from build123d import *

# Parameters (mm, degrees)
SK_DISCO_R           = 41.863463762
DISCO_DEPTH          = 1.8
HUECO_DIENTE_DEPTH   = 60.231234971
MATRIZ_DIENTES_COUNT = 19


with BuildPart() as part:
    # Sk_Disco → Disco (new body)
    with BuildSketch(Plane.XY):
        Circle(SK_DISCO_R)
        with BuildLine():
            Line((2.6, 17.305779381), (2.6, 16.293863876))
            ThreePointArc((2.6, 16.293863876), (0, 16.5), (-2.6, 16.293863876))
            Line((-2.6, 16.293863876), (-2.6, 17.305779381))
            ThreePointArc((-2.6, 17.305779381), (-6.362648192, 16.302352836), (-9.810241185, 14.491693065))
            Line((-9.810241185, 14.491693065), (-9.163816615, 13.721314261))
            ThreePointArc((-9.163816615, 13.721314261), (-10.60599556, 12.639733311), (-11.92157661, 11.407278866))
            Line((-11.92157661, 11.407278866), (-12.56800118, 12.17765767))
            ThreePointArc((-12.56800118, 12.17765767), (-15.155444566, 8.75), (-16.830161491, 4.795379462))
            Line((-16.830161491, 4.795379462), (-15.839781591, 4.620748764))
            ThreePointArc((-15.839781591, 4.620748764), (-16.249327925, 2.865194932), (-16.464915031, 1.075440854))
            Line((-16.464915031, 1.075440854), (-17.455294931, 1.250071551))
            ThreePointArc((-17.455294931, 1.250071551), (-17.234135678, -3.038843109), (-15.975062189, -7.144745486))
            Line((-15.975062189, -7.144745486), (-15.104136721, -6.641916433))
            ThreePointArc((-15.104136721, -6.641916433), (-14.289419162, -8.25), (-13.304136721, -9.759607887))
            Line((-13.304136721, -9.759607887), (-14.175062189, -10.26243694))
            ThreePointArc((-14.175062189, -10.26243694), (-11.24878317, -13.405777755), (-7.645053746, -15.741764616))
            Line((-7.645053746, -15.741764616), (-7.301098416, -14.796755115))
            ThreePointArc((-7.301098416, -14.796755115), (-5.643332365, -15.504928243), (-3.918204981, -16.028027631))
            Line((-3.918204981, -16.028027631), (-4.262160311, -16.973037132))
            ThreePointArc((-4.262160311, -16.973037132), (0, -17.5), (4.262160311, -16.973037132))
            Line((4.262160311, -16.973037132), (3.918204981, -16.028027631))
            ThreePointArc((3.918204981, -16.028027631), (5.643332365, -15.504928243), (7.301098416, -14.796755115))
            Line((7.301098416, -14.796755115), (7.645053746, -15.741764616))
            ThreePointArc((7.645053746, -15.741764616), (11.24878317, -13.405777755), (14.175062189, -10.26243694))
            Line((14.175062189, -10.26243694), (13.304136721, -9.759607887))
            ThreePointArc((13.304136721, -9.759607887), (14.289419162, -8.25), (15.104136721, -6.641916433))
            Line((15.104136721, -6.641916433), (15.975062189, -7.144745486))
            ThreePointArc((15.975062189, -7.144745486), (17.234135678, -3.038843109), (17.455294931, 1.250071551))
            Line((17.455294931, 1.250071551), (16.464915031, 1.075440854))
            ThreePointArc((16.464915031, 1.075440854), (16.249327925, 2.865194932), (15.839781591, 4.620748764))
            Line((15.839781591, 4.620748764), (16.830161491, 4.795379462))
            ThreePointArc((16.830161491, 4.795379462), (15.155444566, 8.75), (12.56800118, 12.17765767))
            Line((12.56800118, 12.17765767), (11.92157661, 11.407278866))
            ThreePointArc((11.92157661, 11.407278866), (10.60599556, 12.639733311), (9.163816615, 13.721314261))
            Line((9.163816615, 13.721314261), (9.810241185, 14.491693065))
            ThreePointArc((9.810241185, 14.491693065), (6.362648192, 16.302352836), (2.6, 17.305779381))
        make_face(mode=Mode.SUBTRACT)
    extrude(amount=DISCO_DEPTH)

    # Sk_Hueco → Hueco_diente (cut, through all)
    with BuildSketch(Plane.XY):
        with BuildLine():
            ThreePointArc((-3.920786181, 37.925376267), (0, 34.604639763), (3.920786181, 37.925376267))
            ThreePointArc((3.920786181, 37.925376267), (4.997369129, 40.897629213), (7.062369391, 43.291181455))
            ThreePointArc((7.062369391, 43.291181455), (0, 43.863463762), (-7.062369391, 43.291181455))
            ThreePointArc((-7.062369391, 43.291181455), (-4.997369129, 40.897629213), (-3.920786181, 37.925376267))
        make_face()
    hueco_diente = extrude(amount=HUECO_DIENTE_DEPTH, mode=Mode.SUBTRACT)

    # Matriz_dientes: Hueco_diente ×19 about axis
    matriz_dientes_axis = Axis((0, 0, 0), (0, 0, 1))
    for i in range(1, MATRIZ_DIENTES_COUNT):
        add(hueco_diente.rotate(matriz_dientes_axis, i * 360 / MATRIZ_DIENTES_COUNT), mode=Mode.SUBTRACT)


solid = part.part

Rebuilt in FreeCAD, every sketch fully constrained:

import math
import FreeCAD as App
import Part
import Sketcher

V = App.Vector
Q = App.Units.Quantity

doc = App.newDocument("Part")
params = doc.addObject("Spreadsheet::Sheet", "Params")
for row, (alias, value) in enumerate([
    ("sketch1_radius", "17.5 mm"),
    ("sketch1_radius2", "16.5 mm"),
    ("pad1_length", "1.8 mm"),
], start=1):
    params.set(f"A{row}", alias)
    params.set(f"B{row}", "=" + value)
    params.setAlias(f"B{row}", alias)

body = doc.addObject("PartDesign::Body", "Body")

sketch1 = doc.addObject("Sketcher::SketchObject", "Sketch")
body.addObject(sketch1)
sketch1.AttachmentSupport = (doc.XY_Plane, [""])
sketch1.MapMode = "FlatFace"
sketch1.addGeometry([
    Part.Circle(V(0, 0, 0), V(0, 0, 1), 41.9),
    Part.LineSegment(V(2.6, 16.3, 0), V(2.6, 17.3, 0)),
    Part.ArcOfCircle(Part.Circle(V(0, 0, 0), V(0, 0, 1), 17.5), math.radians(56), math.radians(81)),
    Part.LineSegment(V(9.8, 14.5, 0), V(9.2, 13.7, 0)),
    Part.ArcOfCircle(Part.Circle(V(0, 0, 0), V(0, 0, 1), 16.5), math.radians(43.74), math.radians(56.26)),
    Part.LineSegment(V(11.9, 11.4, 0), V(12.6, 12.2, 0)),
    Part.ArcOfCircle(Part.Circle(V(0, 0, 0), V(0, 0, 1), 17.5), math.radians(16), math.radians(44)),
    Part.LineSegment(V(16.8, 4.8, 0), V(15.8, 4.6, 0)),
    Part.ArcOfCircle(Part.Circle(V(0, 0, 0), V(0, 0, 1), 16.5), math.radians(3.74), math.radians(16.26)),
    Part.LineSegment(V(16.5, 1.1, 0), V(17.5, 1.3, 0)),
    Part.ArcOfCircle(Part.Circle(V(0, 0, 0), V(0, 0, 1), 17.5), math.radians(-24), math.radians(4)),
    Part.LineSegment(V(16, -7.1, 0), V(15.1, -6.6, 0)),
    Part.ArcOfCircle(Part.Circle(V(0, 0, 0), V(0, 0, 1), 16.5), math.radians(-36.26), math.radians(-23.74)),
    Part.LineSegment(V(13.3, -9.8, 0), V(14.2, -10.3, 0)),
    Part.ArcOfCircle(Part.Circle(V(0, 0, 0), V(0, 0, 1), 17.5), math.radians(-64), math.radians(-36)),
    Part.LineSegment(V(7.6, -15.7, 0), V(7.3, -14.8, 0)),
    Part.ArcOfCircle(Part.Circle(V(0, 0, 0), V(0, 0, 1), 16.5), math.radians(-76.26), math.radians(-63.74)),
    Part.LineSegment(V(3.9, -16, 0), V(4.3, -17, 0)),
    Part.ArcOfCircle(Part.Circle(V(0, 0, 0), V(0, 0, 1), 17.5), math.radians(-104), math.radians(-76)),
    Part.LineSegment(V(-4.3, -17, 0), V(-3.9, -16, 0)),
    Part.ArcOfCircle(Part.Circle(V(0, 0, 0), V(0, 0, 1), 16.5), math.radians(-116.26), math.radians(-103.74)),
    Part.LineSegment(V(-7.3, -14.8, 0), V(-7.6, -15.7, 0)),
    Part.ArcOfCircle(Part.Circle(V(0, 0, 0), V(0, 0, 1), 17.5), math.radians(-144), math.radians(-116)),
    Part.LineSegment(V(-14.2, -10.3, 0), V(-13.3, -9.8, 0)),
    Part.ArcOfCircle(Part.Circle(V(0, 0, 0), V(0, 0, 1), 16.5), math.radians(-156.26), math.radians(-143.74)),
    Part.LineSegment(V(-15.1, -6.6, 0), V(-16, -7.1, 0)),
    Part.ArcOfCircle(Part.Circle(V(0, 0, 0), V(0, 0, 1), 17.5), math.radians(176), math.radians(204)),
    Part.LineSegment(V(-17.5, 1.3, 0), V(-16.5, 1.1, 0)),
    Part.ArcOfCircle(Part.Circle(V(0, 0, 0), V(0, 0, 1), 16.5), math.radians(163.74), math.radians(176.26)),
    Part.LineSegment(V(-15.8, 4.6, 0), V(-16.8, 4.8, 0)),
    Part.ArcOfCircle(Part.Circle(V(0, 0, 0), V(0, 0, 1), 17.5), math.radians(136), math.radians(164)),
    Part.LineSegment(V(-12.6, 12.2, 0), V(-11.9, 11.4, 0)),
    Part.ArcOfCircle(Part.Circle(V(0, 0, 0), V(0, 0, 1), 16.5), math.radians(123.74), math.radians(136.26)),
    Part.LineSegment(V(-9.2, 13.7, 0), V(-9.8, 14.5, 0)),
    Part.ArcOfCircle(Part.Circle(V(0, 0, 0), V(0, 0, 1), 17.5), math.radians(99), math.radians(124)),
    Part.LineSegment(V(-2.6, 17.3, 0), V(-2.6, 16.3, 0)),
    Part.ArcOfCircle(Part.Circle(V(0, 0, 0), V(0, 0, 1), 16.5), math.radians(80.93), math.radians(99.07)),
], False)
sketch1.addConstraint([
    Sketcher.Constraint("Coincident", 1, 2, 2, 2),
    Sketcher.Constraint("Coincident", 2, 1, 3, 1),
    Sketcher.Constraint("Coincident", 3, 2, 4, 2),
    Sketcher.Constraint("Coincident", 4, 1, 5, 1),
    Sketcher.Constraint("Coincident", 5, 2, 6, 2),
    Sketcher.Constraint("Coincident", 6, 1, 7, 1),
    Sketcher.Constraint("Coincident", 7, 2, 8, 2),
    Sketcher.Constraint("Coincident", 8, 1, 9, 1),
    Sketcher.Constraint("Coincident", 9, 2, 10, 2),
    Sketcher.Constraint("Coincident", 10, 1, 11, 1),
    Sketcher.Constraint("Coincident", 11, 2, 12, 2),
    Sketcher.Constraint("Coincident", 12, 1, 13, 1),
    Sketcher.Constraint("Coincident", 13, 2, 14, 2),
    Sketcher.Constraint("Coincident", 14, 1, 15, 1),
    Sketcher.Constraint("Coincident", 15, 2, 16, 2),
    Sketcher.Constraint("Coincident", 16, 1, 17, 1),
    Sketcher.Constraint("Coincident", 17, 2, 18, 2),
    Sketcher.Constraint("Coincident", 18, 1, 19, 1),
    Sketcher.Constraint("Coincident", 19, 2, 20, 2),
    Sketcher.Constraint("Coincident", 20, 1, 21, 1),
    Sketcher.Constraint("Coincident", 21, 2, 22, 2),
    Sketcher.Constraint("Coincident", 22, 1, 23, 1),
    Sketcher.Constraint("Coincident", 23, 2, 24, 2),
    Sketcher.Constraint("Coincident", 24, 1, 25, 1),
    Sketcher.Constraint("Coincident", 25, 2, 26, 2),
    Sketcher.Constraint("Coincident", 26, 1, 27, 1),
    Sketcher.Constraint("Coincident", 27, 2, 28, 2),
    Sketcher.Constraint("Coincident", 28, 1, 29, 1),
    Sketcher.Constraint("Coincident", 29, 2, 30, 2),
    Sketcher.Constraint("Coincident", 30, 1, 31, 1),
    Sketcher.Constraint("Coincident", 31, 2, 32, 2),
    Sketcher.Constraint("Coincident", 32, 1, 33, 1),
    Sketcher.Constraint("Coincident", 33, 2, 34, 2),
    Sketcher.Constraint("Coincident", 34, 1, 35, 1),
    Sketcher.Constraint("Coincident", 35, 2, 36, 2),
    Sketcher.Constraint("Coincident", 36, 1, 1, 1),
    Sketcher.Constraint("Vertical", 1),
    Sketcher.Constraint("Vertical", 35),
    Sketcher.Constraint("Coincident", 0, 3, -1, 1),
    Sketcher.Constraint("Coincident", 2, 3, -1, 1),
    Sketcher.Constraint("Coincident", 4, 3, -1, 1),
    Sketcher.Constraint("Coincident", 6, 3, -1, 1),
    Sketcher.Constraint("Coincident", 8, 3, -1, 1),
    Sketcher.Constraint("Coincident", 10, 3, -1, 1),
    Sketcher.Constraint("Coincident", 12, 3, -1, 1),
    Sketcher.Constraint("Coincident", 14, 3, -1, 1),
    Sketcher.Constraint("Coincident", 16, 3, -1, 1),
    Sketcher.Constraint("Coincident", 18, 3, -1, 1),
    Sketcher.Constraint("Coincident", 20, 3, -1, 1),
    Sketcher.Constraint("Coincident", 22, 3, -1, 1),
    Sketcher.Constraint("Coincident", 24, 3, -1, 1),
    Sketcher.Constraint("Coincident", 26, 3, -1, 1),
    Sketcher.Constraint("Coincident", 28, 3, -1, 1),
    Sketcher.Constraint("Coincident", 30, 3, -1, 1),
    Sketcher.Constraint("Coincident", 32, 3, -1, 1),
    Sketcher.Constraint("Coincident", 34, 3, -1, 1),
    Sketcher.Constraint("Coincident", 36, 3, -1, 1),
    Sketcher.Constraint("Equal", 2, 6),
    Sketcher.Constraint("Equal", 4, 8),
    Sketcher.Constraint("Equal", 6, 10),
    Sketcher.Constraint("Equal", 8, 12),
    Sketcher.Constraint("Equal", 10, 14),
    Sketcher.Constraint("Equal", 12, 16),
    Sketcher.Constraint("Equal", 14, 18),
    Sketcher.Constraint("Equal", 16, 20),
    Sketcher.Constraint("Equal", 18, 22),
    Sketcher.Constraint("Equal", 20, 24),
    Sketcher.Constraint("Equal", 22, 26),
    Sketcher.Constraint("Equal", 24, 28),
    Sketcher.Constraint("Equal", 26, 30),
    Sketcher.Constraint("Equal", 28, 32),
    Sketcher.Constraint("Equal", 30, 34),
    Sketcher.Constraint("Equal", 32, 36),
    Sketcher.Constraint("Parallel", 3, 5),
    Sketcher.Constraint("Parallel", 7, 9),
    Sketcher.Constraint("Parallel", 11, 13),
    Sketcher.Constraint("Parallel", 15, 17),
    Sketcher.Constraint("Parallel", 19, 21),
    Sketcher.Constraint("Parallel", 23, 25),
    Sketcher.Constraint("Parallel", 27, 29),
    Sketcher.Constraint("Parallel", 31, 33),
    Sketcher.Constraint("Horizontal", 17, 2, 18, 1),
    Sketcher.Constraint("Horizontal", 16, 1, 19, 2),
    Sketcher.Constraint("Horizontal", 15, 2, 20, 1),
    Sketcher.Constraint("Horizontal", 13, 2, 22, 1),
    Sketcher.Constraint("Horizontal", 12, 1, 23, 2),
    Sketcher.Constraint("Horizontal", 11, 2, 24, 1),
    Sketcher.Constraint("Horizontal", 9, 2, 26, 1),
    Sketcher.Constraint("Horizontal", 8, 1, 27, 2),
    Sketcher.Constraint("Horizontal", 7, 2, 28, 1),
    Sketcher.Constraint("Horizontal", 5, 2, 30, 1),
    Sketcher.Constraint("Horizontal", 4, 1, 31, 2),
    Sketcher.Constraint("Horizontal", 3, 2, 32, 1),
    Sketcher.Constraint("Horizontal", 1, 2, 34, 1),
    Sketcher.Constraint("Equal", 3, 5),
    Sketcher.Constraint("Equal", 5, 7),
    Sketcher.Constraint("Equal", 7, 9),
    Sketcher.Constraint("Equal", 9, 11),
    Sketcher.Constraint("Equal", 11, 13),
    Sketcher.Constraint("Equal", 13, 15),
    Sketcher.Constraint("Equal", 15, 17),
    Sketcher.Constraint("Radius", 2, Q("17.5 mm")),
    Sketcher.Constraint("Radius", 4, Q("16.5 mm")),
    Sketcher.Constraint("Angle", 3, Q("-130 deg")),
    Sketcher.Constraint("Angle", 7, Q("-170 deg")),
    Sketcher.Constraint("Angle", 11, Q("150 deg")),
    Sketcher.Constraint("Angle", 15, Q("110 deg")),
    Sketcher.Constraint("DistanceX", -1, 1, 1, 2, Q("2.6 mm")),
    Sketcher.Constraint("DistanceX", 12, 1, 11, 2, Q("1.8 mm")),
    Sketcher.Constraint("Diameter", 0, Q("83.726928 mm")),
])
sketch1.setExpression("Constraints[101]", "Params.sketch1_radius")
sketch1.setExpression("Constraints[102]", "Params.sketch1_radius2")
pad1 = doc.addObject("PartDesign::Pad", "Pad")
body.addObject(pad1)
pad1.Profile = sketch1
pad1.setExpression("Length", "Params.pad1_length")

sketch2 = doc.addObject("Sketcher::SketchObject", "Sketch001")
body.addObject(sketch2)
sketch2.AttachmentSupport = (doc.XY_Plane, [""])
sketch2.MapMode = "FlatFace"
sketch2.addGeometry([
    Part.ArcOfCircle(Part.Circle(V(0, 38.6, 0), V(0, 0, 1), 4), math.radians(-171), math.radians(-9)),
    Part.ArcOfCircle(Part.Circle(V(12.5, 36.5, 0), V(0, 0, 1), 8.7), math.radians(129), math.radians(171)),
    Part.ArcOfCircle(Part.Circle(V(0, 0, 0), V(0, 0, 1), 43.9), math.radians(80.73), math.radians(99.27)),
    Part.ArcOfCircle(Part.Circle(V(-12.5, 36.5, 0), V(0, 0, 1), 8.7), math.radians(9), math.radians(51)),
], False)
sketch2.addConstraint([
    Sketcher.Constraint("Tangent", 0, 2, 1, 2),
    Sketcher.Constraint("Coincident", 1, 1, 2, 1),
    Sketcher.Constraint("Coincident", 2, 2, 3, 2),
    Sketcher.Constraint("Tangent", 3, 1, 0, 1),
    Sketcher.Constraint("Coincident", 2, 3, -1, 1),
    Sketcher.Constraint("Equal", 1, 3),
    Sketcher.Constraint("Symmetric", 1, 3, 3, 3, -2),
    Sketcher.Constraint("Radius", 0, Q("3.975 mm")),
    Sketcher.Constraint("Radius", 1, Q("8.725 mm")),
    Sketcher.Constraint("Radius", 2, Q("43.863464 mm")),
    Sketcher.Constraint("DistanceY", -1, 1, 0, 3, Q("38.57964 mm")),
    Sketcher.Constraint("DistanceX", -1, 1, 1, 3, Q("12.526789 mm")),
])
pocket1 = doc.addObject("PartDesign::Pocket", "Pocket")
body.addObject(pocket1)
pocket1.Profile = sketch2
pocket1.Type = "ThroughAll"
pocket1.Reversed = True
doc.recompute()

polarpattern = doc.addObject("PartDesign::PolarPattern", "PolarPattern")
body.addObject(polarpattern)
polarpattern.Originals = [pocket1]
polarpattern.Axis = (doc.Z_Axis, [""])
polarpattern.Angle = 360
polarpattern.Occurrences = 19
body.Tip = polarpattern

doc.recompute()
